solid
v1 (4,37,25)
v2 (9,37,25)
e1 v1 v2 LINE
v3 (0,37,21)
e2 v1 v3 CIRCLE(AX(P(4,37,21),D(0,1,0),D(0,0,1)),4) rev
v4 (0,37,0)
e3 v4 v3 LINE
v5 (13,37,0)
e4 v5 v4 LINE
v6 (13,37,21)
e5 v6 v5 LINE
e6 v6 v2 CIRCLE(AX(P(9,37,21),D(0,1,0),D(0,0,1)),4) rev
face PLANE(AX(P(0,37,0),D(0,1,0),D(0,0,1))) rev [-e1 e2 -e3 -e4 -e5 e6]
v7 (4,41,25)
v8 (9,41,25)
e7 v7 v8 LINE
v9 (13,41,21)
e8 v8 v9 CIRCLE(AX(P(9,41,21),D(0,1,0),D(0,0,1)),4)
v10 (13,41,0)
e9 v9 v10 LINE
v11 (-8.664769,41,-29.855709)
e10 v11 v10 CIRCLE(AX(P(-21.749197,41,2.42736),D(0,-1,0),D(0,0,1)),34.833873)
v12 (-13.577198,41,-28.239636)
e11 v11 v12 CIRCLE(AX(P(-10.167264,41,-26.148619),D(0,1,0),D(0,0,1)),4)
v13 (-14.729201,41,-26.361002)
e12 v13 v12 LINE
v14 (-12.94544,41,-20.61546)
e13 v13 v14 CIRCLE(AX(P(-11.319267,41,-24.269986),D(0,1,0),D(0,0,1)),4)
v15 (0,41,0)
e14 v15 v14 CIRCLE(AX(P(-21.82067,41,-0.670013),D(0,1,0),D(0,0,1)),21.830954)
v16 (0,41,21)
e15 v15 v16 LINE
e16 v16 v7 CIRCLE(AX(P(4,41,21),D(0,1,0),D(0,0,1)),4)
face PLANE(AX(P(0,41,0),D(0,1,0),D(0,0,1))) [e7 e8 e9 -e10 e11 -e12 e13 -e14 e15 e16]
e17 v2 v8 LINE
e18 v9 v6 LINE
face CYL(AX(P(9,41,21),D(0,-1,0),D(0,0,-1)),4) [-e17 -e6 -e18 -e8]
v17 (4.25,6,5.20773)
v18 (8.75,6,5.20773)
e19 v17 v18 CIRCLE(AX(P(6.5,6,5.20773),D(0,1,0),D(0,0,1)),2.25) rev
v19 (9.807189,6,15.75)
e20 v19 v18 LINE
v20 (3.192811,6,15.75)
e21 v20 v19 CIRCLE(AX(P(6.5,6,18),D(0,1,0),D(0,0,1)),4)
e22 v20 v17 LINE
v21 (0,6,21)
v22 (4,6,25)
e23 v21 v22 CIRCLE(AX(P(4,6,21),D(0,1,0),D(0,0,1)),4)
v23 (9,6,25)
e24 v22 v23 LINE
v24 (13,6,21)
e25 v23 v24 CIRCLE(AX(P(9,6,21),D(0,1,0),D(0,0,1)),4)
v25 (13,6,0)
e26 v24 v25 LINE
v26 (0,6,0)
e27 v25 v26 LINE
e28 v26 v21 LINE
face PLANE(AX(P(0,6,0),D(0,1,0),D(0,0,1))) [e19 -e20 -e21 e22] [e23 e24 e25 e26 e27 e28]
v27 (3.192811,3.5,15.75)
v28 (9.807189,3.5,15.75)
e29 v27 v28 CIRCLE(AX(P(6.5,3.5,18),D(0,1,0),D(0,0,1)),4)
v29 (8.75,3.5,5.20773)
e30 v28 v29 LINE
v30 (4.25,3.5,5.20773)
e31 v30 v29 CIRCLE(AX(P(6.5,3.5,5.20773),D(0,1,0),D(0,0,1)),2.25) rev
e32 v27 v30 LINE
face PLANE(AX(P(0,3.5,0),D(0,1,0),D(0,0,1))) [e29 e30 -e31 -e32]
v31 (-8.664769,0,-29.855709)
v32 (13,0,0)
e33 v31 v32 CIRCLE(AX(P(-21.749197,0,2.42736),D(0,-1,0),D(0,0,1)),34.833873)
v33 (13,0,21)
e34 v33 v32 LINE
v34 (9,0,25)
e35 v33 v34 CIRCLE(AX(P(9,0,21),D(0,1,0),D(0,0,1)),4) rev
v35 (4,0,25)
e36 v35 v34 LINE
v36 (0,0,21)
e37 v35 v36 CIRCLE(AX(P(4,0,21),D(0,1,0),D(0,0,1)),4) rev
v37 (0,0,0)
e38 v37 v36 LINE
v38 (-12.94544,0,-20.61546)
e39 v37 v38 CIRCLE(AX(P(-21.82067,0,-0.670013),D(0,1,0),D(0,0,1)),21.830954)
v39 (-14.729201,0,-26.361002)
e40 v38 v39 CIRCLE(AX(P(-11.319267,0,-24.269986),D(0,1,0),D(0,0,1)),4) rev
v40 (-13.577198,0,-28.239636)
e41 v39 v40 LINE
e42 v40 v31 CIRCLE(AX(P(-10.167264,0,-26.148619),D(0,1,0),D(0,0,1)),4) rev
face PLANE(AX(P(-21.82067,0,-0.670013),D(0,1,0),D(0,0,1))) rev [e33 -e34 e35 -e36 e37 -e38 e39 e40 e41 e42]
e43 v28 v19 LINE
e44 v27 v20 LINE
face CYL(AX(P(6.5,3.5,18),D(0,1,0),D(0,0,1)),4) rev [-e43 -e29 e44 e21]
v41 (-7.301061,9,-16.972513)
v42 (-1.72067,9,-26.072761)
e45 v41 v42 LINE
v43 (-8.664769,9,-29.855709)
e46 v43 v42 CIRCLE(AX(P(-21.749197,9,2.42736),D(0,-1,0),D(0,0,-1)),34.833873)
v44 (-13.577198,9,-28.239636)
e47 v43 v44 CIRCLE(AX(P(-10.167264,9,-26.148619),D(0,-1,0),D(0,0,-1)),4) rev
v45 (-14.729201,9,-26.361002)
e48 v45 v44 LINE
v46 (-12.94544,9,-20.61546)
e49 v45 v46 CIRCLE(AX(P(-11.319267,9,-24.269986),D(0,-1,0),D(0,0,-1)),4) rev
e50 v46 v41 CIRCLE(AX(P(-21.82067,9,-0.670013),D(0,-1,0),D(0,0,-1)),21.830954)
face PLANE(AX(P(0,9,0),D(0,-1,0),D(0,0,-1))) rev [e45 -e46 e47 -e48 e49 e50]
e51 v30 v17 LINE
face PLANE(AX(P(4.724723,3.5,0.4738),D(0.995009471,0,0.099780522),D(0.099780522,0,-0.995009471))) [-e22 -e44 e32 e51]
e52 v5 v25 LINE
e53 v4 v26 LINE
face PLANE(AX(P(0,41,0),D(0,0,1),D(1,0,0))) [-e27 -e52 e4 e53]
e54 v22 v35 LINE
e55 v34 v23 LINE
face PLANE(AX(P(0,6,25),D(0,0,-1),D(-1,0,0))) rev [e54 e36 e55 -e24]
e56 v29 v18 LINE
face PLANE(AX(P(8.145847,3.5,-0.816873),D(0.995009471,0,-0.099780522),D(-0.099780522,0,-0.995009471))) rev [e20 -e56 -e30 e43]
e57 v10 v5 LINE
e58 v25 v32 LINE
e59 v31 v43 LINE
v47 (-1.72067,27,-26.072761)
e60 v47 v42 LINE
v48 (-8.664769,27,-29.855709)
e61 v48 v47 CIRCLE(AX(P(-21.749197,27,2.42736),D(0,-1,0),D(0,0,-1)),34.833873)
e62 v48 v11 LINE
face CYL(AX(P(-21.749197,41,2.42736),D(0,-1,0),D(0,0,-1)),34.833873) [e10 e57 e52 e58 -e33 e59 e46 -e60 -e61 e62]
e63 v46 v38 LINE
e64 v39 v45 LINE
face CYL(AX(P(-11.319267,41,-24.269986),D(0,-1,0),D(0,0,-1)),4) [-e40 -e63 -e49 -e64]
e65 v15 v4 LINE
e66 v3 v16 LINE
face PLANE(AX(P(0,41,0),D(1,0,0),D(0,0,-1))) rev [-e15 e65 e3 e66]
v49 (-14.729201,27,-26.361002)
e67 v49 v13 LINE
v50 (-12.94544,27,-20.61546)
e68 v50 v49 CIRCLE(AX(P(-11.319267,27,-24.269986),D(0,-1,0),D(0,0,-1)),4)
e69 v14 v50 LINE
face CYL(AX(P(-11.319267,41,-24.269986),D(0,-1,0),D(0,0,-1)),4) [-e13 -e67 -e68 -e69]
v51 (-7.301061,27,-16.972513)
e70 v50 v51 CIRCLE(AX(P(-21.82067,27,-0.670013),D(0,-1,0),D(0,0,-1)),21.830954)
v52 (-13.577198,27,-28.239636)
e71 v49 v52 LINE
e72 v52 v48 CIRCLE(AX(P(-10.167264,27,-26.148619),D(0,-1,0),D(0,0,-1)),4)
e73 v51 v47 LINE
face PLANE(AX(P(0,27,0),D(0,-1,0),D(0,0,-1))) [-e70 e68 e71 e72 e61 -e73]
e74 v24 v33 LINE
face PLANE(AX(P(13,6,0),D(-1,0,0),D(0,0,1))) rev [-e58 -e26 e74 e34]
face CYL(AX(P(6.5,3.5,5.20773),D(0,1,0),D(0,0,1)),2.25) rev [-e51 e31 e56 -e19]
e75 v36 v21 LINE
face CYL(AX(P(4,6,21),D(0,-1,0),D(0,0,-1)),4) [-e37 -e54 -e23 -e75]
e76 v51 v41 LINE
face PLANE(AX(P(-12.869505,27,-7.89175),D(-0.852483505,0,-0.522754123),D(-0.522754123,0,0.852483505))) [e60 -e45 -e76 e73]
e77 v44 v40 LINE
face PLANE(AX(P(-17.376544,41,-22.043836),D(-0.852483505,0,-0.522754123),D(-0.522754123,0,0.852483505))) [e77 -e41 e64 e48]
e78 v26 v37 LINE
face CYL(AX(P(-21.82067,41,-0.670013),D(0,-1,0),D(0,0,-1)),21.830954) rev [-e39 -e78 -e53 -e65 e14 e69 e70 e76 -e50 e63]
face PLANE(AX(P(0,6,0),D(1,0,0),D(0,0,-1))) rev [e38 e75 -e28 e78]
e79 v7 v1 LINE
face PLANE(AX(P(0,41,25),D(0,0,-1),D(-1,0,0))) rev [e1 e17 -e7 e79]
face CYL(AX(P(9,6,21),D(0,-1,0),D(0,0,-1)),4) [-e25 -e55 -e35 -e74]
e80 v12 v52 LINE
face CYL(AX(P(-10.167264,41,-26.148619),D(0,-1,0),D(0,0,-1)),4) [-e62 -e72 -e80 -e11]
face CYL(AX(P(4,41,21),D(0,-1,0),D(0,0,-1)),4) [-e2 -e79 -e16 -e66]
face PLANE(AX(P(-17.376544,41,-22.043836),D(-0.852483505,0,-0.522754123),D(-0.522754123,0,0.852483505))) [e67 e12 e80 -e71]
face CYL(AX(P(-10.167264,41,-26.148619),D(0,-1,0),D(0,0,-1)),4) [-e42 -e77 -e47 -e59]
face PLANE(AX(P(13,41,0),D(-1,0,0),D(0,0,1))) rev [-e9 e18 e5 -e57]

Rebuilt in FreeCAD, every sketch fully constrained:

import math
import FreeCAD as App
import Part
import Sketcher
from FreeCAD import Vector


def edges_at(feature, points):
    """Names of the edges that pass closest to the given points."""
    edges = feature.Shape.Edges
    near = lambda p: min(range(len(edges)), key=lambda i: edges[i].distToShape(Part.Vertex(*p))[0])
    return sorted({f"Edge{near(p) + 1}" for p in points})

doc = App.newDocument("Part")
body = doc.addObject("PartDesign::Body", "Body")

# Sketch on XZ plane
sketch1 = body.newObject("Sketcher::SketchObject", "Sketch")
sketch1.AttachmentSupport = (doc.getObject("XZ_Plane"), [""])
sketch1.MapMode = "FlatFace"
sketch1.addGeometry([
    Part.LineSegment(Vector(0, 0, 0), Vector(0, 25, 0)),
    Part.LineSegment(Vector(0, 25, 0), Vector(13, 25, 0)),
    Part.LineSegment(Vector(13, 25, 0), Vector(13, 0, 0)),
    Part.LineSegment(Vector(13, 0, 0), Vector(0, 0, 0)),
], False)
sketch1.addConstraint([
    Sketcher.Constraint("Coincident", 0, 2, 1, 1),
    Sketcher.Constraint("Coincident", 1, 2, 2, 1),
    Sketcher.Constraint("Coincident", 2, 2, 3, 1),
    Sketcher.Constraint("Coincident", 3, 2, 0, 1),
    Sketcher.Constraint("Vertical", 0),
    Sketcher.Constraint("Horizontal", 1),
    Sketcher.Constraint("Vertical", 2),
    Sketcher.Constraint("Horizontal", 3),
    Sketcher.Constraint("Coincident", 3, 2, -1, 1),
    Sketcher.Constraint("DistanceX", 1, 1, 1, 2, 13.0),
    Sketcher.Constraint("DistanceY", 0, 1, 0, 2, 25.0),
])
pad1 = body.newObject("PartDesign::Pad", "Pad")
pad1.Profile = sketch1
pad1.Length = 6
pad1.Reversed = True

# Sketch on XZ plane
sketch2 = body.newObject("Sketcher::SketchObject", "Sketch001")
sketch2.AttachmentSupport = (doc.getObject("XZ_Plane"), [""])
sketch2.MapMode = "FlatFace"
sketch2.AttachmentOffset = App.Placement(Vector(0, 0, -6), App.Rotation())
sketch2.addGeometry([
    Part.LineSegment(Vector(4.2, 5.2, 0), Vector(3.2, 15.8, 0)),  # 0
    Part.ArcOfCircle(Part.Circle(Vector(6.5, 18, 0), Vector(0, 0, 1), 4), math.radians(146), math.radians(214)),  # 1
    Part.ArcOfCircle(Part.Circle(Vector(6.5, 18, 0), Vector(0, 0, 1), 4), math.radians(34), math.radians(146)),  # 2
    Part.ArcOfCircle(Part.Circle(Vector(6.5, 18, 0), Vector(0, 0, 1), 4), math.radians(0), math.radians(34)),  # 3
    Part.ArcOfCircle(Part.Circle(Vector(6.5, 18, 0), Vector(0, 0, 1), 4), math.radians(-34), math.radians(0)),  # 4
    Part.LineSegment(Vector(9.8, 15.8, 0), Vector(8.8, 5.2, 0)),  # 5
    Part.ArcOfCircle(Part.Circle(Vector(6.5, 5.2, 0), Vector(0, 0, 1), 2.2), math.radians(180), math.radians(360)),  # 6
], False)
sketch2.addConstraint([
    Sketcher.Constraint("Coincident", 0, 2, 1, 2),
    Sketcher.Constraint("Tangent", 1, 1, 2, 2),
    Sketcher.Constraint("Tangent", 2, 1, 3, 2),
    Sketcher.Constraint("Tangent", 3, 1, 4, 2),
    Sketcher.Constraint("Coincident", 4, 1, 5, 1),
    Sketcher.Constraint("Coincident", 5, 2, 6, 2),
    Sketcher.Constraint("Coincident", 6, 1, 0, 1),
    Sketcher.Constraint("Coincident", 3, 3, 1, 3),
    Sketcher.Constraint("Equal", 3, 4),
    Sketcher.Constraint("Horizontal", 1, 1, 2, 1),
    Sketcher.Constraint("Horizontal", 4, 3, 3, 1),
    Sketcher.Constraint("Horizontal", 0, 2, 4, 1),
    Sketcher.Constraint("Horizontal", 6, 3, 5, 2),
    Sketcher.Constraint("Horizontal", 5, 2, 6, 1),
    Sketcher.Constraint("Vertical", 4, 3, 6, 3),
    Sketcher.Constraint("Vertical", 0, 2, 1, 1),
    Sketcher.Constraint("Radius", 1, 4.0),
    Sketcher.Constraint("Radius", 6, 2.25),
    Sketcher.Constraint("DistanceY", -1, 1, 1, 3, 18.0),
    Sketcher.Constraint("DistanceX", -1, 1, 1, 3, 6.5),
    Sketcher.Constraint("DistanceY", 0, 2, 1, 1, 4.5),
    Sketcher.Constraint("DistanceY", -1, 1, 6, 3, 5.20773),
])
pocket1 = body.newObject("PartDesign::Pocket", "Pocket")
pocket1.Profile = sketch2
pocket1.Length = 2.5
pocket1.Reversed = True
body2 = doc.addObject("PartDesign::Body", "Body001")

# Sketch on XZ plane
sketch3 = body2.newObject("Sketcher::SketchObject", "Sketch002")
sketch3.AttachmentSupport = (doc.getObject("XZ_Plane001"), [""])
sketch3.MapMode = "FlatFace"
sketch3.AttachmentOffset = App.Placement(Vector(0, 0, -37), App.Rotation())
sketch3.addGeometry([
    Part.LineSegment(Vector(0, 0, 0), Vector(0, 25, 0)),
    Part.LineSegment(Vector(0, 25, 0), Vector(13, 25, 0)),
    Part.LineSegment(Vector(13, 25, 0), Vector(13, 0, 0)),
    Part.LineSegment(Vector(13, 0, 0), Vector(0, 0, 0)),
], False)
sketch3.addConstraint([
    Sketcher.Constraint("Coincident", 0, 2, 1, 1),
    Sketcher.Constraint("Coincident", 1, 2, 2, 1),
    Sketcher.Constraint("Coincident", 2, 2, 3, 1),
    Sketcher.Constraint("Coincident", 3, 2, 0, 1),
    Sketcher.Constraint("Vertical", 0),
    Sketcher.Constraint("Horizontal", 1),
    Sketcher.Constraint("Vertical", 2),
    Sketcher.Constraint("Horizontal", 3),
    Sketcher.Constraint("Coincident", 3, 2, -1, 1),
    Sketcher.Constraint("DistanceX", 1, 1, 1, 2, 13.0),
    Sketcher.Constraint("DistanceY", 0, 1, 0, 2, 25.0),
])
pad2 = body2.newObject("PartDesign::Pad", "Pad001")
pad2.Profile = sketch3
pad2.Length = 4
pad2.Reversed = True
body.AllowCompound = True
doc.recompute()

boolean = body.newObject("PartDesign::Boolean", "Boolean")
boolean.Type = "Fuse"
boolean.addObjects([body2])

# Sketch on XZ plane
sketch4 = body.newObject("Sketcher::SketchObject", "Sketch003")
sketch4.AttachmentSupport = (doc.getObject("XZ_Plane"), [""])
sketch4.MapMode = "FlatFace"
sketch4.addGeometry([
    Part.LineSegment(Vector(-17, -22, 0), Vector(-12, -31, 0)),
    Part.ArcOfCircle(Part.Circle(Vector(-22, 2, 0), Vector(0, 0, 1), 35), math.radians(-74), math.radians(-4)),
    Part.LineSegment(Vector(13, 0, 0), Vector(0, 0, 0)),
    Part.ArcOfCircle(Part.Circle(Vector(-22, -1, 0), Vector(0, 0, 1), 22), math.radians(-78), math.radians(2)),
], False)
sketch4.addConstraint([
    Sketcher.Constraint("Coincident", 0, 2, 1, 1),
    Sketcher.Constraint("Coincident", 1, 2, 2, 1),
    Sketcher.Constraint("Coincident", 2, 2, 3, 2),
    Sketcher.Constraint("Coincident", 3, 1, 0, 1),
    Sketcher.Constraint("Horizontal", 2),
    Sketcher.Constraint("Coincident", 2, 2, -1, 1),
    Sketcher.Constraint("DistanceX", 2, 2, 2, 1, 13.0),
    Sketcher.Constraint("Radius", 1, 34.833873),
    Sketcher.Constraint("Radius", 3, 21.830954),
    Sketcher.Constraint("Distance", 0, 10.486622),
    Sketcher.Constraint("DistanceY", -1, 1, 1, 3, 2.42736),
    Sketcher.Constraint("DistanceX", 3, 3, -1, 1, 21.82067),
    Sketcher.Constraint("DistanceX", 0, 2, -1, 1, 11.894619),
])
pad3 = body.newObject("PartDesign::Pad", "Pad002")
pad3.Profile = sketch4
pad3.Length = 41
pad3.Reversed = True

# Sketch on XZ plane
sketch5 = body.newObject("Sketcher::SketchObject", "Sketch004")
sketch5.AttachmentSupport = (doc.getObject("XZ_Plane"), [""])
sketch5.MapMode = "FlatFace"
sketch5.AttachmentOffset = App.Placement(Vector(0, 0, -9), App.Rotation())
sketch5.addGeometry([
    Part.LineSegment(Vector(-2, -26, 0), Vector(-7, -17, 0)),
    Part.ArcOfCircle(Part.Circle(Vector(-22, -1, 0), Vector(0, 0, 1), 22), math.radians(-78), math.radians(-48)),
    Part.LineSegment(Vector(-17, -22, 0), Vector(-12, -31, 0)),
    Part.ArcOfCircle(Part.Circle(Vector(-22, 2, 0), Vector(0, 0, 1), 35), math.radians(-73.57), math.radians(-54.9)),
], False)
sketch5.addConstraint([
    Sketcher.Constraint("Coincident", 0, 2, 1, 2),
    Sketcher.Constraint("Coincident", 1, 1, 2, 1),
    Sketcher.Constraint("Coincident", 2, 2, 3, 1),
    Sketcher.Constraint("Coincident", 3, 2, 0, 1),
    Sketcher.Constraint("Parallel", 0, 2),
    Sketcher.Constraint("DistanceX", 1, 3, 3, 2, 20.100001),
    Sketcher.Constraint("Radius", 1, 21.830954),
    Sketcher.Constraint("Radius", 3, 34.833873),
    Sketcher.Constraint("DistanceY", 0, 2, 1, 3, 16.302501),
    Sketcher.Constraint("Distance", 2, 10.486622),
    Sketcher.Constraint("DistanceX", 1, 3, -1, 1, 21.82067),
    Sketcher.Constraint("DistanceY", -1, 1, 3, 3, 2.42736),
    Sketcher.Constraint("DistanceX", 2, 2, -1, 1, 11.894619),
    Sketcher.Constraint("DistanceY", 3, 2, -1, 1, 26.072761),
])
pocket2 = body.newObject("PartDesign::Pocket", "Pocket001")
pocket2.Profile = sketch5
pocket2.Length = 18
doc.recompute()

fillet = body.newObject("PartDesign::Fillet", "Fillet")
fillet.Base = (pocket2, edges_at(pocket2, [
    (-17.377, 34, -22.044),
    (-11.895, 34, -30.984),
    (-17.377, 4.5, -22.044),
    (-11.895, 4.5, -30.984),
]))
fillet.Radius = 4
doc.recompute()

fillet2 = body.newObject("PartDesign::Fillet", "Fillet001")
fillet2.Base = (fillet, edges_at(fillet, [
    (0, 3, 25),
    (13, 3, 25),
    (13, 39, 25),
    (0, 39, 25),
]))
fillet2.Radius = 4

doc.recompute()
